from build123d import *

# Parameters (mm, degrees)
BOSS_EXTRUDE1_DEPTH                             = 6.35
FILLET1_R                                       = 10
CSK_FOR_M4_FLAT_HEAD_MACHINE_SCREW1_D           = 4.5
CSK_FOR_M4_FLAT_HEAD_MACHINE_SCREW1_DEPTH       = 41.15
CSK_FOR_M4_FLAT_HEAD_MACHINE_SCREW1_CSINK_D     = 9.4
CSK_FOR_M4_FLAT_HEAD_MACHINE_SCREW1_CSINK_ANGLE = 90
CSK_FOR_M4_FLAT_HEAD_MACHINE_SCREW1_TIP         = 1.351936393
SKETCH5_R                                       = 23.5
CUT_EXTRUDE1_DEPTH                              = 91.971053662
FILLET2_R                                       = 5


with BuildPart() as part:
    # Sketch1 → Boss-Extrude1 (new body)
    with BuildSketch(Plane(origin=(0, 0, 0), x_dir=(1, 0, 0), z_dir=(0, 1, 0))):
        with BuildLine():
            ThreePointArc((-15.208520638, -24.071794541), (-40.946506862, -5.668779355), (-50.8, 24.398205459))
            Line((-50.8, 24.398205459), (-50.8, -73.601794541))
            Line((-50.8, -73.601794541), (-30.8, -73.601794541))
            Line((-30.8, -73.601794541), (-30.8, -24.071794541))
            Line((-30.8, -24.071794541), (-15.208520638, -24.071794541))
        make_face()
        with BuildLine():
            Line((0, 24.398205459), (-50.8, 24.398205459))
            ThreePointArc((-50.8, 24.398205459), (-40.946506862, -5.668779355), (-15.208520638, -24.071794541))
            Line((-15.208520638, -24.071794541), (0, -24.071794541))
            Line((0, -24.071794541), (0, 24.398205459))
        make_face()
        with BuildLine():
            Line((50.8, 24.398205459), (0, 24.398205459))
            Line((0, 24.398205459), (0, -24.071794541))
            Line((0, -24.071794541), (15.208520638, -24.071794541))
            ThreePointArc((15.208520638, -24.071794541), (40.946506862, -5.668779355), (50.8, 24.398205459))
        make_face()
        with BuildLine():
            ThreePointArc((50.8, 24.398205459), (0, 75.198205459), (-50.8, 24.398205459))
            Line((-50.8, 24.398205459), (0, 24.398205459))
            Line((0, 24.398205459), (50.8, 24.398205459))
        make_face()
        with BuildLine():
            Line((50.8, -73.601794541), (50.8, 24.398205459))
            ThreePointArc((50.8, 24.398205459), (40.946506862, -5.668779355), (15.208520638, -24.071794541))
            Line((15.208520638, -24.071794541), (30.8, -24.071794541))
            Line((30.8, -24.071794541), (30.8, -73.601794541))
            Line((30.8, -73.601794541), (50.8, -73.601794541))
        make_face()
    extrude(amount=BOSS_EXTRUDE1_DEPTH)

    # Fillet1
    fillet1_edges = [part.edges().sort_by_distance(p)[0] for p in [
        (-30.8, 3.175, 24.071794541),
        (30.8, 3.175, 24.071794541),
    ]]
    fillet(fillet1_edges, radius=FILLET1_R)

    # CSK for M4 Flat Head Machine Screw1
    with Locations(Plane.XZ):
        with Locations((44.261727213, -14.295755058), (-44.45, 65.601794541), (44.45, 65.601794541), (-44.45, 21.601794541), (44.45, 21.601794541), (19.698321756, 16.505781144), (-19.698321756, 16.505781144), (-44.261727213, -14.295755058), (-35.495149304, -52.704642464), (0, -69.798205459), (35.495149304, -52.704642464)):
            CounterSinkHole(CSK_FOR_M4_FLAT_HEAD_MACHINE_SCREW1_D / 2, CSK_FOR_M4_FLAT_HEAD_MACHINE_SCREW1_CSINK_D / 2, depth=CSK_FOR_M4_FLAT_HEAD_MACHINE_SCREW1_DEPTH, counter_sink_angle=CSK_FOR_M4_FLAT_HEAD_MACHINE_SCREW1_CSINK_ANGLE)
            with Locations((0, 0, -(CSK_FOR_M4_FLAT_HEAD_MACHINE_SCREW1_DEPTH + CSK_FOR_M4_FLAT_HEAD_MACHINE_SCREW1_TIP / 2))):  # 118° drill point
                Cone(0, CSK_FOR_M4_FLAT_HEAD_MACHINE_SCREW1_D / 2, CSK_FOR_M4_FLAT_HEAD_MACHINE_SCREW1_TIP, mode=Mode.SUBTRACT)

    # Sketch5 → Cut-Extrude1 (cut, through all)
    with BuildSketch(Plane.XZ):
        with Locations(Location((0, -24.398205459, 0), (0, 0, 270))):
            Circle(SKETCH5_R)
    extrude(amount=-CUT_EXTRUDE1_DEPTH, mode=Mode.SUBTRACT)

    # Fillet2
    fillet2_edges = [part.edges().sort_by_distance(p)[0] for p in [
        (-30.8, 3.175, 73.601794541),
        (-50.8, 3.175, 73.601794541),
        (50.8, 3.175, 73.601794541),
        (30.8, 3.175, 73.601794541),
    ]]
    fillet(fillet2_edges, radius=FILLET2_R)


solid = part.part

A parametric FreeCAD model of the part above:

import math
import FreeCAD as App
import Part
import Sketcher
from FreeCAD import Vector
Q = App.Units.Quantity


def edges_at(feature, points):
    """Names of the edges that pass closest to the given points."""
    edges = feature.Shape.Edges
    near = lambda p: min(range(len(edges)), key=lambda i: edges[i].distToShape(Part.Vertex(*p))[0])
    return sorted({f"Edge{near(p) + 1}" for p in points})

doc = App.newDocument("Part")
params = doc.addObject("Spreadsheet::Sheet", "Params")
for row, (alias, value) in enumerate([
    ("sketch1_radius", "50.8 mm"),
    ("sketch1_width", "20 mm"),
    ("sketch1_height", "98 mm"),
    ("sketch1_height2", "49.53 mm"),
    ("pad1_length", "6.35 mm"),
    ("fillet_radius", "10 mm"),
    ("sketch2_diameter", "4.5 mm"),
    ("hole_diameter", "4.5 mm"),
    ("hole_depth", "41.15 mm"),
    ("hole_csink_diameter", "9.4 mm"),
    ("sketch3_diameter", "47 mm"),
    ("fillet2_radius", "5 mm"),
], start=1):
    params.set(f"A{row}", alias)
    params.set(f"B{row}", "=" + value)
    params.setAlias(f"B{row}", alias)

body = doc.addObject("PartDesign::Body", "Body")

# Sketch on XZ plane
sketch1 = body.newObject("Sketcher::SketchObject", "Sketch")
sketch1.AttachmentSupport = (doc.getObject("XZ_Plane"), [""])
sketch1.MapMode = "FlatFace"
sketch1.addGeometry([
    Part.LineSegment(Vector(-31, 74, 0), Vector(-31, 24, 0)),  # 0
    Part.LineSegment(Vector(-31, 24, 0), Vector(31, 24, 0)),  # 1
    Part.LineSegment(Vector(31, 24, 0), Vector(31, 74, 0)),  # 2
    Part.LineSegment(Vector(31, 74, 0), Vector(51, 74, 0)),  # 3
    Part.LineSegment(Vector(51, 74, 0), Vector(51, -24, 0)),  # 4
    Part.ArcOfCircle(Part.Circle(Vector(0, -24, 0), Vector(0, 0, 1), 51), math.radians(180), math.radians(360)),  # 5
    Part.LineSegment(Vector(-51, -24, 0), Vector(-51, 74, 0)),  # 6
    Part.LineSegment(Vector(-51, 74, 0), Vector(-31, 74, 0)),  # 7
], False)
sketch1.addConstraint([
    Sketcher.Constraint("Coincident", 0, 2, 1, 1),
    Sketcher.Constraint("Coincident", 1, 2, 2, 1),
    Sketcher.Constraint("Coincident", 2, 2, 3, 1),
    Sketcher.Constraint("Coincident", 3, 2, 4, 1),
    Sketcher.Constraint("Tangent", 4, 2, 5, 2),
    Sketcher.Constraint("Tangent", 5, 1, 6, 1),
    Sketcher.Constraint("Coincident", 6, 2, 7, 1),
    Sketcher.Constraint("Coincident", 7, 2, 0, 1),
    Sketcher.Constraint("Vertical", 0),
    Sketcher.Constraint("Horizontal", 1),
    Sketcher.Constraint("Vertical", 2),
    Sketcher.Constraint("Horizontal", 3),
    Sketcher.Constraint("Vertical", 4),
    Sketcher.Constraint("Vertical", 6),
    Sketcher.Constraint("Horizontal", 7),
    Sketcher.Constraint("Symmetric", 3, 2, 6, 2, -2),
    Sketcher.Constraint("Equal", 3, 7),
    Sketcher.Constraint("Radius", 5, Q("50.8 mm")),
    Sketcher.Constraint("DistanceX", 3, 1, 3, 2, Q("20 mm")),
    Sketcher.Constraint("DistanceY", 4, 2, 4, 1, Q("98 mm")),
    Sketcher.Constraint("DistanceY", 0, 2, 0, 1, Q("49.53 mm")),
    Sketcher.Constraint("DistanceY", 5, 3, -1, 1, Q("24.398205 mm")),
])
sketch1.setExpression("Constraints[17]", "Params.sketch1_radius")
sketch1.setExpression("Constraints[18]", "Params.sketch1_width")
sketch1.setExpression("Constraints[19]", "Params.sketch1_height")
sketch1.setExpression("Constraints[20]", "Params.sketch1_height2")
pad1 = body.newObject("PartDesign::Pad", "Pad")
pad1.Profile = sketch1
pad1.setExpression("Length", "Params.pad1_length")
pad1.Reversed = True
doc.recompute()

fillet = body.newObject("PartDesign::Fillet", "Fillet")
fillet.Base = (pad1, edges_at(pad1, [(-30.8, 3.175, 24.072), (30.8, 3.175, 24.072)]))
fillet.setExpression("Radius", "Params.fillet_radius")

# Sketch on XZ plane
sketch2 = body.newObject("Sketcher::SketchObject", "Sketch001")
sketch2.AttachmentSupport = (doc.getObject("XZ_Plane"), [""])
sketch2.MapMode = "FlatFace"
sketch2.addGeometry([
    Part.Circle(Vector(44.3, -14.3, 0), Vector(0, 0, 1), 2.2),  # 0
    Part.Circle(Vector(-44.5, 65.6, 0), Vector(0, 0, 1), 2.2),  # 1
    Part.Circle(Vector(44.5, 65.6, 0), Vector(0, 0, 1), 2.2),  # 2
    Part.Circle(Vector(-44.5, 21.6, 0), Vector(0, 0, 1), 2.2),  # 3
    Part.Circle(Vector(44.5, 21.6, 0), Vector(0, 0, 1), 2.2),  # 4
    Part.Circle(Vector(19.7, 16.5, 0), Vector(0, 0, 1), 2.2),  # 5
    Part.Circle(Vector(-19.7, 16.5, 0), Vector(0, 0, 1), 2.2),  # 6
    Part.Circle(Vector(-44.3, -14.3, 0), Vector(0, 0, 1), 2.2),  # 7
    Part.Circle(Vector(-35.5, -52.7, 0), Vector(0, 0, 1), 2.2),  # 8
    Part.Circle(Vector(0, -69.8, 0), Vector(0, 0, 1), 2.2),  # 9
    Part.Circle(Vector(35.5, -52.7, 0), Vector(0, 0, 1), 2.2),  # 10
], False)
sketch2.addConstraint([
    Sketcher.Constraint("Equal", 0, 1),
    Sketcher.Constraint("Equal", 1, 2),
    Sketcher.Constraint("Equal", 2, 3),
    Sketcher.Constraint("Equal", 3, 4),
    Sketcher.Constraint("Equal", 4, 5),
    Sketcher.Constraint("Equal", 5, 6),
    Sketcher.Constraint("Equal", 6, 7),
    Sketcher.Constraint("Equal", 7, 8),
    Sketcher.Constraint("Equal", 8, 9),
    Sketcher.Constraint("Equal", 9, 10),
    Sketcher.Constraint("Symmetric", 1, 3, 2, 3, -2),
    Sketcher.Constraint("Symmetric", 3, 3, 4, 3, -2),
    Sketcher.Constraint("Symmetric", 5, 3, 6, 3, -2),
    Sketcher.Constraint("Symmetric", 0, 3, 7, 3, -2),
    Sketcher.Constraint("Symmetric", 8, 3, 10, 3, -2),
    Sketcher.Constraint("PointOnObject", 9, 3, -2),
    Sketcher.Constraint("Vertical", 1, 3, 3, 3),
    Sketcher.Constraint("Diameter", 0, Q("4.5 mm")),
    Sketcher.Constraint("DistanceY", 3, 3, 1, 3, Q("44 mm")),
    Sketcher.Constraint("DistanceX", 1, 3, 2, 3, Q("88.9 mm")),
    Sketcher.Constraint("DistanceX", 8, 3, 10, 3, Q("70.990299 mm")),
    Sketcher.Constraint("DistanceX", -1, 1, 5, 3, Q("19.698322 mm")),
    Sketcher.Constraint("DistanceY", -1, 1, 5, 3, Q("16.505781 mm")),
    Sketcher.Constraint("DistanceY", 0, 3, 1, 3, Q("79.89755 mm")),
    Sketcher.Constraint("DistanceX", 6, 3, 0, 3, Q("63.960049 mm")),
    Sketcher.Constraint("DistanceY", 9, 3, 0, 3, Q("55.50245 mm")),
    Sketcher.Constraint("DistanceY", 0, 3, -1, 1, Q("14.295755 mm")),
    Sketcher.Constraint("DistanceY", 8, 3, -1, 1, Q("52.704642 mm")),
])
sketch2.setExpression("Constraints[17]", "Params.sketch2_diameter")
doc.recompute()
hole = body.newObject("PartDesign::Hole", "Hole")
hole.Profile = sketch2
hole.ThreadType = "None"
hole.setExpression("Diameter", "Params.hole_diameter")
hole.DepthType = "Dimension"
hole.setExpression("Depth", "Params.hole_depth")
hole.DrillPoint = "Angled"
hole.DrillPointAngle = 118
hole.HoleCutType = "Countersink"
hole.setExpression("HoleCutDiameter", "Params.hole_csink_diameter")
hole.HoleCutCountersinkAngle = 90

# Sketch on XZ plane
sketch3 = body.newObject("Sketcher::SketchObject", "Sketch002")
sketch3.AttachmentSupport = (doc.getObject("XZ_Plane"), [""])
sketch3.MapMode = "FlatFace"
sketch3.addGeometry(Part.Circle(Vector(0, -24, 0), Vector(0, 0, 1), 24), False)
sketch3.addConstraint([
    Sketcher.Constraint("PointOnObject", 0, 3, -2),
    Sketcher.Constraint("Diameter", 0, Q("47 mm")),
    Sketcher.Constraint("DistanceY", 0, 3, -1, 1, Q("24.398205 mm")),
])
sketch3.setExpression("Constraints[1]", "Params.sketch3_diameter")
pocket1 = body.newObject("PartDesign::Pocket", "Pocket")
pocket1.Profile = sketch3
pocket1.Type = "ThroughAll"
doc.recompute()

fillet2 = body.newObject("PartDesign::Fillet", "Fillet001")
fillet2.Base = (pocket1, edges_at(pocket1, [
    (-30.8, 3.175, 73.602),
    (-50.8, 3.175, 73.602),
    (50.8, 3.175, 73.602),
    (30.8, 3.175, 73.602),
]))
fillet2.setExpression("Radius", "Params.fillet2_radius")

doc.recompute()
